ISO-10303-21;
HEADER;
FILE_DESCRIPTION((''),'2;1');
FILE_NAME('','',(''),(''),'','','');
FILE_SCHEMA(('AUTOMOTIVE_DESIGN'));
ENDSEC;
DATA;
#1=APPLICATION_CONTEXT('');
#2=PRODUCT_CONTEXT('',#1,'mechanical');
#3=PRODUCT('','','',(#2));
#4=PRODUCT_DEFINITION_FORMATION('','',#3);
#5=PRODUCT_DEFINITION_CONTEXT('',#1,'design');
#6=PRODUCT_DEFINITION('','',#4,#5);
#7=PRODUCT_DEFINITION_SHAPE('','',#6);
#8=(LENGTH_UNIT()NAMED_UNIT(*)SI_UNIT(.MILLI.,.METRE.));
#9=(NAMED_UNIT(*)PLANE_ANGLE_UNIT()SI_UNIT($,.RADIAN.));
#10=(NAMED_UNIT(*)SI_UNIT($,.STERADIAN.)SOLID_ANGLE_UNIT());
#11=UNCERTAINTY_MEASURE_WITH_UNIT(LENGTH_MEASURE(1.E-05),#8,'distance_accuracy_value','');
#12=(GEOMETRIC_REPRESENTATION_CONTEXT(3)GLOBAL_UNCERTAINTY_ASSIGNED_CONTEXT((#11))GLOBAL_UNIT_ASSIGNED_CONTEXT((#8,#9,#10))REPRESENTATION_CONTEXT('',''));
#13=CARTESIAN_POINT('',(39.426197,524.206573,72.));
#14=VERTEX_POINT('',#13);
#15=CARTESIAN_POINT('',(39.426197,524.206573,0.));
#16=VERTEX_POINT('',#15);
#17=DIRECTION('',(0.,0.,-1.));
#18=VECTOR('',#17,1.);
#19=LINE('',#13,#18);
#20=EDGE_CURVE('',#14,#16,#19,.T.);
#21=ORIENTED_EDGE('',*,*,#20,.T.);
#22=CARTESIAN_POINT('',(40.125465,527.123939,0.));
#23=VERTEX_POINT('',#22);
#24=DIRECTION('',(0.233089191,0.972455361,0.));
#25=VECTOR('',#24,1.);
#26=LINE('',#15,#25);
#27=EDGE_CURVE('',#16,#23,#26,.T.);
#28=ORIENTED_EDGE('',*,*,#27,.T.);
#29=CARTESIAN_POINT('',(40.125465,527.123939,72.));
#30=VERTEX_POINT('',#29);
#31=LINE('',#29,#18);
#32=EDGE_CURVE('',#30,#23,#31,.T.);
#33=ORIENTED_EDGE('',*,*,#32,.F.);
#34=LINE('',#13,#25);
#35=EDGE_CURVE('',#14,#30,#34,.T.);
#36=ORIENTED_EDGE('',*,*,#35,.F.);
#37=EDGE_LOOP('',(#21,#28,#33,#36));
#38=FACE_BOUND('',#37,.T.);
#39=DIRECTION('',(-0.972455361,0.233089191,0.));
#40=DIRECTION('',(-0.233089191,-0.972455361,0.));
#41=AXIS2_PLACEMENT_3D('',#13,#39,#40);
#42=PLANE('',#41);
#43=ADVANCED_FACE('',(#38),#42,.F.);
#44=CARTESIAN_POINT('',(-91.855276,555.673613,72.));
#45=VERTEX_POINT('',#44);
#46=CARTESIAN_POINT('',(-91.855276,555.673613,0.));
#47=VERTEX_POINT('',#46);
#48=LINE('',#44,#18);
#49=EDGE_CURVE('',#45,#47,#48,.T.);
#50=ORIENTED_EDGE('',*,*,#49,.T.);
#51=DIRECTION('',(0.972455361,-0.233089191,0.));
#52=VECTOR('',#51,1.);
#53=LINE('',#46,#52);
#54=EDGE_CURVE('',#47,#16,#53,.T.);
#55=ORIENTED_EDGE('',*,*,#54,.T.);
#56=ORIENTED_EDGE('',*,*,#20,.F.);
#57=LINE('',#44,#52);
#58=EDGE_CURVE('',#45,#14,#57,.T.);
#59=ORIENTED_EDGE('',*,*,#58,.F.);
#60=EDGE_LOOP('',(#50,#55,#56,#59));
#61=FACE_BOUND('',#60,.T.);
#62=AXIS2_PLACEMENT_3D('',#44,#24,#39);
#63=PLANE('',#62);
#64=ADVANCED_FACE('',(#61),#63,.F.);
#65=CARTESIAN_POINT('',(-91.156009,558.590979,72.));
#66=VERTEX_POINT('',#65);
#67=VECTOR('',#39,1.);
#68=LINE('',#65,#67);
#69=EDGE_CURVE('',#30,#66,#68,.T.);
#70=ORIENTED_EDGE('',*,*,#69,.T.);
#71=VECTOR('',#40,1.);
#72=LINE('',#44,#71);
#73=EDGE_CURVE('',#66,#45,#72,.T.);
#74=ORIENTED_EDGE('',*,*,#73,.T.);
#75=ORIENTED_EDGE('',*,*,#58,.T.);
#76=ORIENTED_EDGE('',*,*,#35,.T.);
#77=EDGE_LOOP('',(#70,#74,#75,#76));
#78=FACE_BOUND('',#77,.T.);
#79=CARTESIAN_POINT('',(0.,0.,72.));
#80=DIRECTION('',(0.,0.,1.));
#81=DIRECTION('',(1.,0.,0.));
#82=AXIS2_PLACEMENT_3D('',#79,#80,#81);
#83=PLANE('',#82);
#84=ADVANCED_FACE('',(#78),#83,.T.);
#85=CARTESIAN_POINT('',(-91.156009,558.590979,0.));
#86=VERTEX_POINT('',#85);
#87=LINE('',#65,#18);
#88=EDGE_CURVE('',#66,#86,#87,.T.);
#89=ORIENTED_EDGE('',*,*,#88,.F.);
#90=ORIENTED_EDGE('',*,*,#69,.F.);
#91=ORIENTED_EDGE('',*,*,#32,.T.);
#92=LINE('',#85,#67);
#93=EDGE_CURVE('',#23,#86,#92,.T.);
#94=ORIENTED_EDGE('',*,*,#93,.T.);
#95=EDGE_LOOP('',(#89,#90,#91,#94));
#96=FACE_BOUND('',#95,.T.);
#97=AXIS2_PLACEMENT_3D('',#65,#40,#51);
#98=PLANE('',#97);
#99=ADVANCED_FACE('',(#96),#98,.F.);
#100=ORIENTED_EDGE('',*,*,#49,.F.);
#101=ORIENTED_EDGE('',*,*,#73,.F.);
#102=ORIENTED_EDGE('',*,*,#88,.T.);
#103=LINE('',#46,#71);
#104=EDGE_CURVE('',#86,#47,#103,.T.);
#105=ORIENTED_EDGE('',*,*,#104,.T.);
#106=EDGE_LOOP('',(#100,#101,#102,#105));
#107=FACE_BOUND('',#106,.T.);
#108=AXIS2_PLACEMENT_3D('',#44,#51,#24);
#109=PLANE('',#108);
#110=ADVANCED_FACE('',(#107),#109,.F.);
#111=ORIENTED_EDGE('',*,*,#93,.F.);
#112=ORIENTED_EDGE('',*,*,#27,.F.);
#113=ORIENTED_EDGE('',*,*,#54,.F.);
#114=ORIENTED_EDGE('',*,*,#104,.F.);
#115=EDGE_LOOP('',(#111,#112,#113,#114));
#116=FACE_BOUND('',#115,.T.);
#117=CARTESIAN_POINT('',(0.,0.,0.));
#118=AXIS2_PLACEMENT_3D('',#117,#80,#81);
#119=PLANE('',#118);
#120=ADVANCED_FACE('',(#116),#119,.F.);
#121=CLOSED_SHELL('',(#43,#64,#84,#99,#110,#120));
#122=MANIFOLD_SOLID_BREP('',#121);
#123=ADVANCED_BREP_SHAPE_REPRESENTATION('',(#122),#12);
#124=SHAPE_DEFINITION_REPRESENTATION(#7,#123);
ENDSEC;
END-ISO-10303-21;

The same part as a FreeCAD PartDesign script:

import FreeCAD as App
import Part
import Sketcher

V = App.Vector
Q = App.Units.Quantity

doc = App.newDocument("Part")
body = doc.addObject("PartDesign::Body", "Body")

# Sketch on XY plane
sketch1 = body.newObject("Sketcher::SketchObject", "Sketch")
sketch1.AttachmentSupport = (doc.getObject("XY_Plane"), [""])
sketch1.MapMode = "FlatFace"
sketch1.addGeometry(Part.LineSegment(V(-91.2, 558.6, 0), V(-91.9, 555.7, 0)), False)
sketch1.addGeometry(Part.LineSegment(V(-91.9, 555.7, 0), V(39.4, 524.2, 0)), False)
sketch1.addGeometry(Part.LineSegment(V(39.4, 524.2, 0), V(40.1, 527.1, 0)), False)
sketch1.addGeometry(Part.LineSegment(V(40.1, 527.1, 0), V(-91.2, 558.6, 0)), False)
sketch1.addConstraint(Sketcher.Constraint("Coincident", 0, 2, 1, 1))
sketch1.addConstraint(Sketcher.Constraint("Coincident", 1, 2, 2, 1))
sketch1.addConstraint(Sketcher.Constraint("Coincident", 2, 2, 3, 1))
sketch1.addConstraint(Sketcher.Constraint("Coincident", 3, 2, 0, 1))
sketch1.addConstraint(Sketcher.Constraint("Perpendicular", 0, 1))
sketch1.addConstraint(Sketcher.Constraint("Perpendicular", 1, 2))
sketch1.addConstraint(Sketcher.Constraint("Perpendicular", 2, 3))
sketch1.addConstraint(Sketcher.Constraint("Distance", 0, Q("3 mm")))
sketch1.addConstraint(Sketcher.Constraint("Distance", 1, Q("135 mm")))
sketch1.addConstraint(Sketcher.Constraint("DistanceY", -1, 1, 2, 2, Q("527.123939 mm")))
sketch1.addConstraint(Sketcher.Constraint("DistanceX", 3, 2, -1, 1, Q("91.156009 mm")))
sketch1.addConstraint(Sketcher.Constraint("DistanceY", -1, 1, 3, 2, Q("558.590979 mm")))
pad1 = body.newObject("PartDesign::Pad", "Pad")
pad1.Profile = sketch1
pad1.Length = 72

doc.recompute()
